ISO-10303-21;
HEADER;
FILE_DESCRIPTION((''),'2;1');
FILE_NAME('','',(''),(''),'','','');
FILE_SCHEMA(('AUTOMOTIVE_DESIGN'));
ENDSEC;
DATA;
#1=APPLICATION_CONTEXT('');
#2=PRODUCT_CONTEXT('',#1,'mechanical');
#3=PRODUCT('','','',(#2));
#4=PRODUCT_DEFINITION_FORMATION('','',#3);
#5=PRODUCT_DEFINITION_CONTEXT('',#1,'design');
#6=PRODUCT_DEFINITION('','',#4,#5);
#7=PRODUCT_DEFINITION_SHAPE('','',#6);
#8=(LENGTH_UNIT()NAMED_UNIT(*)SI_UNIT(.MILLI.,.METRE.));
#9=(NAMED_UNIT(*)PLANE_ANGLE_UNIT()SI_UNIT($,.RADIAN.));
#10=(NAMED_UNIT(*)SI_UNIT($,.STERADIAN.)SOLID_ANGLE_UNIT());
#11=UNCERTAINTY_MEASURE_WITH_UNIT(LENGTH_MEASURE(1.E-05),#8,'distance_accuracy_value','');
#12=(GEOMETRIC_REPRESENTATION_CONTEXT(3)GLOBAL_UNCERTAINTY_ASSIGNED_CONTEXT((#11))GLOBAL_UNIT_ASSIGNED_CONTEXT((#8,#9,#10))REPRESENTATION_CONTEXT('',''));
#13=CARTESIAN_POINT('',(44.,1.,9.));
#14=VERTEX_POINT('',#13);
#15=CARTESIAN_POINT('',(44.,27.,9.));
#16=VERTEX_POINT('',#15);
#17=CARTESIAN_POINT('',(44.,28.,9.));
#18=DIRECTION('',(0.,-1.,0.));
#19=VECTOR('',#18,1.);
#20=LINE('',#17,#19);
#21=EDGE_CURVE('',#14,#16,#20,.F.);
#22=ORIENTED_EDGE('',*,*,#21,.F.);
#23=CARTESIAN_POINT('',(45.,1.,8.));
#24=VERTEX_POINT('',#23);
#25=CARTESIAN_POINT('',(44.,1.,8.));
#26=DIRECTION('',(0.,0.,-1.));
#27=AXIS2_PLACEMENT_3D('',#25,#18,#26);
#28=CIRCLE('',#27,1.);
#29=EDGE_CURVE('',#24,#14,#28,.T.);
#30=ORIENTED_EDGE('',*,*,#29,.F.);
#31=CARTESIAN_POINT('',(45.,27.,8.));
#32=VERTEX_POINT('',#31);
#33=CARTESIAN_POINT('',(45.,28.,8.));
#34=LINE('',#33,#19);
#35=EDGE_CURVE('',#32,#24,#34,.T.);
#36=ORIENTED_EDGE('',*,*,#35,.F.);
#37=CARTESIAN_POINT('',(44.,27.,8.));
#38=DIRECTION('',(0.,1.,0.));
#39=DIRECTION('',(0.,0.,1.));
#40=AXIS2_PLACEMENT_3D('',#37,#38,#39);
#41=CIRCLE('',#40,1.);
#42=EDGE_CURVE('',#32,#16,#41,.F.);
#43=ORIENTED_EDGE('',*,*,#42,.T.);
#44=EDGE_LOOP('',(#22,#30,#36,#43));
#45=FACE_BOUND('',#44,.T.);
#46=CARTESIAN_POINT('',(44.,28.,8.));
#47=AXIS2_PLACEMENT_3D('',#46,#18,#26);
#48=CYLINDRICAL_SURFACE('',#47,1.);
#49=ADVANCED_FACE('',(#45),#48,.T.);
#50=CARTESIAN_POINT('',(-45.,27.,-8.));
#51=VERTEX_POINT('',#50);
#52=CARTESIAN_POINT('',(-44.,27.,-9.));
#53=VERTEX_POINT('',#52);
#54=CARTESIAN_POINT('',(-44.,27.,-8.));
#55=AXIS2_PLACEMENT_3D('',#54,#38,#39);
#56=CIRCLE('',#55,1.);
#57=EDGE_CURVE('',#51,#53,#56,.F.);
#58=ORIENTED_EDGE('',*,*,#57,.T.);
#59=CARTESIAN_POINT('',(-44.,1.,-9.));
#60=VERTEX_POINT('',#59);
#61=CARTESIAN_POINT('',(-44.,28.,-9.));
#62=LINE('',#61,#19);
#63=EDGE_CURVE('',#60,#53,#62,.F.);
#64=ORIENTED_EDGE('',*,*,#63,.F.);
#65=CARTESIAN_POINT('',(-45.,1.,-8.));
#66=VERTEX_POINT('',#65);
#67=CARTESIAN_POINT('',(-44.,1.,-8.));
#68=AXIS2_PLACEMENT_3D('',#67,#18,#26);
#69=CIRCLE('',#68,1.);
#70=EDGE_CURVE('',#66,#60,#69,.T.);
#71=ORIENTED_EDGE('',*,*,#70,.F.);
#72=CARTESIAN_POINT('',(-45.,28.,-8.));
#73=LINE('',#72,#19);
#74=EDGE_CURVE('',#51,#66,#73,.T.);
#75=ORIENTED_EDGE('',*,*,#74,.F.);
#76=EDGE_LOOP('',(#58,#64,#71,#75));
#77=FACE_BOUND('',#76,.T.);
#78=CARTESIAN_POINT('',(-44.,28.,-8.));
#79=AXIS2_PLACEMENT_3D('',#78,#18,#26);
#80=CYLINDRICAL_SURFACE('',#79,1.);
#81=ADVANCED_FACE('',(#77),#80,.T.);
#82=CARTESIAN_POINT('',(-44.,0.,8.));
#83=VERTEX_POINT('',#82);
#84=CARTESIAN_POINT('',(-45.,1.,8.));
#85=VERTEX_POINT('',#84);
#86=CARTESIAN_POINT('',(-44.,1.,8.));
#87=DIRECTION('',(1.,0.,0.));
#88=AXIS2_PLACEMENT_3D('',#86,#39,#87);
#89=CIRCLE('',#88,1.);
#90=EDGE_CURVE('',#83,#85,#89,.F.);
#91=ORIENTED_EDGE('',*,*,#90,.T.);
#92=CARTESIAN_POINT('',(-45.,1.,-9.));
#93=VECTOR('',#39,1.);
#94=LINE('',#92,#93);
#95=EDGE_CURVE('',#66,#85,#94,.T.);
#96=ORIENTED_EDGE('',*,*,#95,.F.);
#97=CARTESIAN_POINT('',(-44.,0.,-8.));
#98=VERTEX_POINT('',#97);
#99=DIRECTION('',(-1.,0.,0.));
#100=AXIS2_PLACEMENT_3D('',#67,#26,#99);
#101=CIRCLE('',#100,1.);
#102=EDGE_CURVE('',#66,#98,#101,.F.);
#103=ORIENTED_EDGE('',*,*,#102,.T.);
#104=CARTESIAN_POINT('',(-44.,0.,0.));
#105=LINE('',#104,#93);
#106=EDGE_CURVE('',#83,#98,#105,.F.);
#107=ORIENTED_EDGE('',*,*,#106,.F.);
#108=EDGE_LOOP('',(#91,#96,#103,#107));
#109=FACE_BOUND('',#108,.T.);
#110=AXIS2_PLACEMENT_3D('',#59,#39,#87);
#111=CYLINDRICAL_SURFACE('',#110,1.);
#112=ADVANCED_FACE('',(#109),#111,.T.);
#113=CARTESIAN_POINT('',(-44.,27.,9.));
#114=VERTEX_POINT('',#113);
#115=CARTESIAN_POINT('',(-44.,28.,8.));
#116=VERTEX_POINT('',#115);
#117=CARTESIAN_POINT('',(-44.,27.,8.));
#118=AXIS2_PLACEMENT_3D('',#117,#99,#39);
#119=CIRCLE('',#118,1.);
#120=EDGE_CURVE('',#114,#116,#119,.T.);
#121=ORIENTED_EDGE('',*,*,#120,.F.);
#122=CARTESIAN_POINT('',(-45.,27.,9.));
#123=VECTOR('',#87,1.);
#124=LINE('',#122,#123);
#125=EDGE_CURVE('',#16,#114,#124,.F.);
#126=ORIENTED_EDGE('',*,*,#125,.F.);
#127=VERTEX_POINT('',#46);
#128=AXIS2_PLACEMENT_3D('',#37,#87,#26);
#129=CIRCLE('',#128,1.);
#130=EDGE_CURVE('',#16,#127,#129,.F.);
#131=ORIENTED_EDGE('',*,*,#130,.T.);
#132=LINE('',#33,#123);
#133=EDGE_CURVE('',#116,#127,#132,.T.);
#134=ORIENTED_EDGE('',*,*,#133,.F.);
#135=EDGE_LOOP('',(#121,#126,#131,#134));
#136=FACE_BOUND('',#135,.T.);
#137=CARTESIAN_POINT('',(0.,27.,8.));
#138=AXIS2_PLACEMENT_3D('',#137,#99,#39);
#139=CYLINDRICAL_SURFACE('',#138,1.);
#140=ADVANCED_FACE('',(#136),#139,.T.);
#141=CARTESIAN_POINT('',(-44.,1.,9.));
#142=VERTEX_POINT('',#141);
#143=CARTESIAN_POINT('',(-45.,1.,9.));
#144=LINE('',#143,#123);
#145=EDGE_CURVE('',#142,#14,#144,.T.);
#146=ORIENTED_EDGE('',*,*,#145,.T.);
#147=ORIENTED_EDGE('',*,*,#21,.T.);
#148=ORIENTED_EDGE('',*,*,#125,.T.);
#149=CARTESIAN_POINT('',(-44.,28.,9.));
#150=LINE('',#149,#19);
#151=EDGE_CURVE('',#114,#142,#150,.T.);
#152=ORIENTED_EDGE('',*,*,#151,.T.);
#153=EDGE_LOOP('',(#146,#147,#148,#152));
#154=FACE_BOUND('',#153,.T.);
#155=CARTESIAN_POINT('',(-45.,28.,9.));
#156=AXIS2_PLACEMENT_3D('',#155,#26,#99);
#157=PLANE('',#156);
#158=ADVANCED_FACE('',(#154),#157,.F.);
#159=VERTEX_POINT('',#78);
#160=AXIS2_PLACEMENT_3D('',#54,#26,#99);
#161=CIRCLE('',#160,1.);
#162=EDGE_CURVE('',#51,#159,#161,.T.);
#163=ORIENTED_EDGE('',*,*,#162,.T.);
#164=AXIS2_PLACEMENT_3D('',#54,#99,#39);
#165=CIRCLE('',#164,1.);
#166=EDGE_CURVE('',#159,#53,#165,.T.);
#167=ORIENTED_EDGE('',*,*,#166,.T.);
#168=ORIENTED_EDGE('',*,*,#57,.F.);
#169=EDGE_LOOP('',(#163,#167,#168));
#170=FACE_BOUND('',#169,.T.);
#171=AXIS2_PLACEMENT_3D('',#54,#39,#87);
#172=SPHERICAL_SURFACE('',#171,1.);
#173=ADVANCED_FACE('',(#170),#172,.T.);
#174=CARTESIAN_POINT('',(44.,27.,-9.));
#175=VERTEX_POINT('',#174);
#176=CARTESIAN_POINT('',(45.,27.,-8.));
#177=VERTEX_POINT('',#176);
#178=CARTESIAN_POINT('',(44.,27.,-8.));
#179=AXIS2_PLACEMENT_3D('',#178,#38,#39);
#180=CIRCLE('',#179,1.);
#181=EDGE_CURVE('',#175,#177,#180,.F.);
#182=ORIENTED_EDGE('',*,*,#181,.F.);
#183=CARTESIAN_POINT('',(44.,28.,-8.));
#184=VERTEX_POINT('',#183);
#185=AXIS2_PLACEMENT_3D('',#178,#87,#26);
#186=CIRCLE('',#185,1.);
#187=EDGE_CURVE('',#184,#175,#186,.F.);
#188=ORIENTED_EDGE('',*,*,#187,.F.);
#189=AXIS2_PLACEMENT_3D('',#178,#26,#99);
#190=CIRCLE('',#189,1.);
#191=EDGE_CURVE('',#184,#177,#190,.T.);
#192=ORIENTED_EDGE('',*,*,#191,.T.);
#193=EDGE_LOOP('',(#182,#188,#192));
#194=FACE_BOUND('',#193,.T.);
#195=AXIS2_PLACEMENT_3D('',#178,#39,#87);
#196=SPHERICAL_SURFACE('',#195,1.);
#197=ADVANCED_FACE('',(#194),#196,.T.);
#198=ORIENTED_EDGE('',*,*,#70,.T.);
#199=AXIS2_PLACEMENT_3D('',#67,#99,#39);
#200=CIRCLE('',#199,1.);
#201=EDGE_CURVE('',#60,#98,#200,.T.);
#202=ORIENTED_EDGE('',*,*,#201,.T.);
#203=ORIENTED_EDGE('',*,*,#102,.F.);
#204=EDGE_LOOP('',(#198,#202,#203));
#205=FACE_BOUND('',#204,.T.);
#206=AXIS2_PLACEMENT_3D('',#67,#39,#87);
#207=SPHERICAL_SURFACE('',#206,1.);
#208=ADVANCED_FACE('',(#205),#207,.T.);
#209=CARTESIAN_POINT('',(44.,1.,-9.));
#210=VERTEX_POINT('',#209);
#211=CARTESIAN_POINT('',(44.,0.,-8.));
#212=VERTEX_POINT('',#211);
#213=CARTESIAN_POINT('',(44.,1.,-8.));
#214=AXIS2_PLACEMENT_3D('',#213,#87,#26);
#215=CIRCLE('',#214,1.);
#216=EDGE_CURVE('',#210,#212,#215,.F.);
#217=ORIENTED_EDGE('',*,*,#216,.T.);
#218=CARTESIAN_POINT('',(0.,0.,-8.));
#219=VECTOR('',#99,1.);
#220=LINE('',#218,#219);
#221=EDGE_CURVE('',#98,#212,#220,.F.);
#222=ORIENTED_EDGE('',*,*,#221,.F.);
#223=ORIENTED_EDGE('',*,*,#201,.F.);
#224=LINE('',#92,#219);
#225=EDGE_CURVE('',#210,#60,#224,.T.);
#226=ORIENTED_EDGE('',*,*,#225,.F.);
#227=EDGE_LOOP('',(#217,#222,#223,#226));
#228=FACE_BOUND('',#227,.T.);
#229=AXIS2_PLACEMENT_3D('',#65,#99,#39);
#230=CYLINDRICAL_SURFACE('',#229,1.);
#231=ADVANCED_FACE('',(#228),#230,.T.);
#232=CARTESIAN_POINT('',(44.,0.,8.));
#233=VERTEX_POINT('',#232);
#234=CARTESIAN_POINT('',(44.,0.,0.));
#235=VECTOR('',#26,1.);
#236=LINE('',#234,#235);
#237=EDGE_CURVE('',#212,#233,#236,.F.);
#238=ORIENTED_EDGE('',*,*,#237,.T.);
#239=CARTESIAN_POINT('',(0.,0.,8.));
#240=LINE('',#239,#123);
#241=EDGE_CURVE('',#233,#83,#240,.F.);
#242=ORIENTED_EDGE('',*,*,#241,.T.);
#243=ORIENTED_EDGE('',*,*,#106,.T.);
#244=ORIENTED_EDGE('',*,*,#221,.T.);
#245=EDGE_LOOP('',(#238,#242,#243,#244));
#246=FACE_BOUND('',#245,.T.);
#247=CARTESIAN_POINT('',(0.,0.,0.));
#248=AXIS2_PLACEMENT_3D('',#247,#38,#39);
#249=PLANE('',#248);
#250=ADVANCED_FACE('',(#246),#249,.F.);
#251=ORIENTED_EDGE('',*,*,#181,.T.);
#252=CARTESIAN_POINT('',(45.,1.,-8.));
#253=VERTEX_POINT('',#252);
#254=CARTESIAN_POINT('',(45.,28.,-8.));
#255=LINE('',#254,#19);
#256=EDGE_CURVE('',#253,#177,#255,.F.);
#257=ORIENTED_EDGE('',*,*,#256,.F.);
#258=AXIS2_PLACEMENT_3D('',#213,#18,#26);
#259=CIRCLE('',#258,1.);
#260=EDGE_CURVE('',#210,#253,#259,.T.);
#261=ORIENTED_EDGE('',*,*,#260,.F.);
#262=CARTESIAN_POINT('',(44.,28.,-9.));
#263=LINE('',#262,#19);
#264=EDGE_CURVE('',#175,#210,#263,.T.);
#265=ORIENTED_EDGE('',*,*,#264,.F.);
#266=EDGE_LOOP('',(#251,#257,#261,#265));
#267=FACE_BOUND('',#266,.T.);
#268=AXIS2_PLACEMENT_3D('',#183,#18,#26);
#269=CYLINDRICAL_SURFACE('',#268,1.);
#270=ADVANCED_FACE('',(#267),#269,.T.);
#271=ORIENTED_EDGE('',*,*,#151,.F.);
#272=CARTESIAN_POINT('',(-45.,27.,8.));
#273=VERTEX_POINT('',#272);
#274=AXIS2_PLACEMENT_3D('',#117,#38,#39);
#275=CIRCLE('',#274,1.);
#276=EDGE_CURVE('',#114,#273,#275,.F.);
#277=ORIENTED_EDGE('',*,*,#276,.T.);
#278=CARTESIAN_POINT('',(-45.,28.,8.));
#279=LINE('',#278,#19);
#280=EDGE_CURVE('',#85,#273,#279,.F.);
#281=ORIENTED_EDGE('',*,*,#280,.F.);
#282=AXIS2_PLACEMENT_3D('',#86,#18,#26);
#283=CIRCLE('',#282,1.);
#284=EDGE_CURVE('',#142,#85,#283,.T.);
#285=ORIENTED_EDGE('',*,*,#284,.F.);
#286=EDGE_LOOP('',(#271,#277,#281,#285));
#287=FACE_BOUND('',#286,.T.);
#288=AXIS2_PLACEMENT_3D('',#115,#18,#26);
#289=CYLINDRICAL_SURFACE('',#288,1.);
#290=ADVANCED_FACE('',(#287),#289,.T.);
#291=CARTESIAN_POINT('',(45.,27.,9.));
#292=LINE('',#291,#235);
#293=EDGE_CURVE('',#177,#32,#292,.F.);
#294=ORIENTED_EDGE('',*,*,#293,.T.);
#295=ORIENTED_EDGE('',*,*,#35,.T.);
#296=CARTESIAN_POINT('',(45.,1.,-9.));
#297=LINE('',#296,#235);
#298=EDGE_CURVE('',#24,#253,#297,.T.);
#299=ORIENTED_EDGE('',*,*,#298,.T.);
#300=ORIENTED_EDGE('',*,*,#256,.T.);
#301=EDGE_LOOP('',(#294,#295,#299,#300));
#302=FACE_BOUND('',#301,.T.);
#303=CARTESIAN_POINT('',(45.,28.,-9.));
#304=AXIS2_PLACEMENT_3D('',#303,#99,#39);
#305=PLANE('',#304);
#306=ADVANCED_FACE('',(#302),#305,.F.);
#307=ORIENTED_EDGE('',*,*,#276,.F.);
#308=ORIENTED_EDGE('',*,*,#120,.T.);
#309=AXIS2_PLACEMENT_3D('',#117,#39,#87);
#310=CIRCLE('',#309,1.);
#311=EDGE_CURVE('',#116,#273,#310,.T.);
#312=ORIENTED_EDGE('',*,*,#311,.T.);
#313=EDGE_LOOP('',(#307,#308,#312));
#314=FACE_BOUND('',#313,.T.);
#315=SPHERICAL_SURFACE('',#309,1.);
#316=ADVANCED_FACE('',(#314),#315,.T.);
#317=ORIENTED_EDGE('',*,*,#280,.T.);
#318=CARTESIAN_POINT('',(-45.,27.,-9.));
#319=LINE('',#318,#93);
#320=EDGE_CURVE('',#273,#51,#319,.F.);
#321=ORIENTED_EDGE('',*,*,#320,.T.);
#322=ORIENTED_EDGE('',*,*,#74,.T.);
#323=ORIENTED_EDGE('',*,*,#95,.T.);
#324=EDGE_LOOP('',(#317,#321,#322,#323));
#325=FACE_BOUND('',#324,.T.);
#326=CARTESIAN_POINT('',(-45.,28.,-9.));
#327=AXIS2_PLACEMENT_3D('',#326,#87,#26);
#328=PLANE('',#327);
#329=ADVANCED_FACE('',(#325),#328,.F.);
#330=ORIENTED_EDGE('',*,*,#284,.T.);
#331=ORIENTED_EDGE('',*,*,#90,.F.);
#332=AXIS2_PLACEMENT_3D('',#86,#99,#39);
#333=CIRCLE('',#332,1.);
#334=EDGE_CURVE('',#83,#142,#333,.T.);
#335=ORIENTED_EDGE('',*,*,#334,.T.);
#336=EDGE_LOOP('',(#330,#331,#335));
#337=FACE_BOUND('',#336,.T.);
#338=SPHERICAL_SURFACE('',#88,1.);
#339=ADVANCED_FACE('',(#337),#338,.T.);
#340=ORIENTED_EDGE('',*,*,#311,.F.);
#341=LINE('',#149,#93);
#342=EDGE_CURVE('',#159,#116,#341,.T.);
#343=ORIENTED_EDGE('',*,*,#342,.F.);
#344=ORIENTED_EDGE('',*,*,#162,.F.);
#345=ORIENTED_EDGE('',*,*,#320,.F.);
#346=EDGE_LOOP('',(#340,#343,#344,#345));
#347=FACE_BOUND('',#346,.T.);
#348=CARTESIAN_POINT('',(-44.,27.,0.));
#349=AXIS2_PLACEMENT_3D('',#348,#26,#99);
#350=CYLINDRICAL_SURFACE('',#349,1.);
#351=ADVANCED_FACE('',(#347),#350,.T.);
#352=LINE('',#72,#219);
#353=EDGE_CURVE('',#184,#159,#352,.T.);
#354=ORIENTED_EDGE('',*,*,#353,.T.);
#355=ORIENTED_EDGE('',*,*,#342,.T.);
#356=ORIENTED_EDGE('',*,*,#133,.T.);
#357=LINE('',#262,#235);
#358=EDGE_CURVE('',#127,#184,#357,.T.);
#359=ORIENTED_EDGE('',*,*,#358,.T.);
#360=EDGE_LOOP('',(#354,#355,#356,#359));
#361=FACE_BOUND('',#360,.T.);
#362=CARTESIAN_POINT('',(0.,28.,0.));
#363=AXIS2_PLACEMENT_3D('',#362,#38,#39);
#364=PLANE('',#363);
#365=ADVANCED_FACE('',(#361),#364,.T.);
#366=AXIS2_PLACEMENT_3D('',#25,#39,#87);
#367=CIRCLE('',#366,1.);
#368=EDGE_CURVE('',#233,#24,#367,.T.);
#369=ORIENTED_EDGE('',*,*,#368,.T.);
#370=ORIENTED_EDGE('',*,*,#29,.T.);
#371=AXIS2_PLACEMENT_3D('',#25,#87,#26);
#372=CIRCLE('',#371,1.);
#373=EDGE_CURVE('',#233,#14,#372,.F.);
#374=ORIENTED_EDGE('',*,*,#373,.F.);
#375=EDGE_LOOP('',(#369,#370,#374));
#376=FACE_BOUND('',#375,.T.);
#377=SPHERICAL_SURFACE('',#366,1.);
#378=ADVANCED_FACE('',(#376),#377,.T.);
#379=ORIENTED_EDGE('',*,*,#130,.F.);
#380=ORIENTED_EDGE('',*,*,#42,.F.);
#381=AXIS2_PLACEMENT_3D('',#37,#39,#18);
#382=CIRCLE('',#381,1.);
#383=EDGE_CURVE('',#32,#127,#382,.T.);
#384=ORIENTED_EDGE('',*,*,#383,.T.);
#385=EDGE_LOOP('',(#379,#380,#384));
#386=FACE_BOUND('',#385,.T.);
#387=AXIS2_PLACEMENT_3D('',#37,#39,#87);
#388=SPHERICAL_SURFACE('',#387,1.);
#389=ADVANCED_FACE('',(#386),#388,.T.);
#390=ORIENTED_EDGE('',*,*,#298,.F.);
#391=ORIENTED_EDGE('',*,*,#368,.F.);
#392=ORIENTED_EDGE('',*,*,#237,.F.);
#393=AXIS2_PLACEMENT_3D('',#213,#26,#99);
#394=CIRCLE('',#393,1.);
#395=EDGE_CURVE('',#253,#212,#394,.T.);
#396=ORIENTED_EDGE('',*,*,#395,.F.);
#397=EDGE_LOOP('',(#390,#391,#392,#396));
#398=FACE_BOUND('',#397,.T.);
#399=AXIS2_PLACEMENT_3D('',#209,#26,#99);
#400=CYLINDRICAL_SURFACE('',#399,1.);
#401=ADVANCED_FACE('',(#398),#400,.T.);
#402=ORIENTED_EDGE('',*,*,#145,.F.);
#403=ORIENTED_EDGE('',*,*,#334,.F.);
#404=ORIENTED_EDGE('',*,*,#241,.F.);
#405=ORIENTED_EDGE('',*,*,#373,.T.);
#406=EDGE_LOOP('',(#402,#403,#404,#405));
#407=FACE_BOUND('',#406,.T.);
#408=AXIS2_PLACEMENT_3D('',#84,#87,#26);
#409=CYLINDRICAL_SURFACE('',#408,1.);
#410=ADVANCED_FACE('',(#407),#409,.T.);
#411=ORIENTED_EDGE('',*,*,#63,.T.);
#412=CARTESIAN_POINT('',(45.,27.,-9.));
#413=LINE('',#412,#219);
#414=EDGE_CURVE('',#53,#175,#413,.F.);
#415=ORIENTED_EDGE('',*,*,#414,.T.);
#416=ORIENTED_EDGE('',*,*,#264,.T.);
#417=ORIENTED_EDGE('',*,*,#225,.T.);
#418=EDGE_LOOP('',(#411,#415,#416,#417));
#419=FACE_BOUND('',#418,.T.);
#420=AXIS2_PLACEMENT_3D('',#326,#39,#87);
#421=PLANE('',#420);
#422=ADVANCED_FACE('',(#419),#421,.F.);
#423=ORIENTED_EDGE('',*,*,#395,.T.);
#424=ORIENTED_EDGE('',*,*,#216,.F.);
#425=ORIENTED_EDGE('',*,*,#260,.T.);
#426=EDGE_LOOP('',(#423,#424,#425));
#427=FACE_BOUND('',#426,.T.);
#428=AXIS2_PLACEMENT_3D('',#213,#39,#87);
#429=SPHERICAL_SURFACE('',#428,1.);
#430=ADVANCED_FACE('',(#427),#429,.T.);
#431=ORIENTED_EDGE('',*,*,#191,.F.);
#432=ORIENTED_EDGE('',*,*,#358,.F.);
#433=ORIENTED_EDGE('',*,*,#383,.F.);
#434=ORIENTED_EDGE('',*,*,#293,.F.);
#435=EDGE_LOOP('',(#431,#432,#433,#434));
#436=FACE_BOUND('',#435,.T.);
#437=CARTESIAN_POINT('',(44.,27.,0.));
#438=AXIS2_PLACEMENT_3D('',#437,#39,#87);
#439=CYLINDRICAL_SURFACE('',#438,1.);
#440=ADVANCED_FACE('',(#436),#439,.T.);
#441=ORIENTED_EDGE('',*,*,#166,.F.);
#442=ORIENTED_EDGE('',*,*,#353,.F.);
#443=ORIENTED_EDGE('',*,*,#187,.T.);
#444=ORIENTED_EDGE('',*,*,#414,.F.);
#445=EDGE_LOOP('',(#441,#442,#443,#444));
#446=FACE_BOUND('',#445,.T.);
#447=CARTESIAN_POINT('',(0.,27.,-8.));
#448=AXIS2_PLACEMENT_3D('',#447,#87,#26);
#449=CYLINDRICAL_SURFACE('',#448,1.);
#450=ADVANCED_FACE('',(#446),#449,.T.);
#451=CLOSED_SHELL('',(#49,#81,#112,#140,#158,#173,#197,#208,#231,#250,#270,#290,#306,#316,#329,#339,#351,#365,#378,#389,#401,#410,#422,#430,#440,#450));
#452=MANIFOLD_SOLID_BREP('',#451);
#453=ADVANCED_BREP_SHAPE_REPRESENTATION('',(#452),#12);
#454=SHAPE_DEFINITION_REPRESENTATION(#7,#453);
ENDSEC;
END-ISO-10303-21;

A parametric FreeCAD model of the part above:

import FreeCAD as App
import Part
import Sketcher
Q = App.Units.Quantity


def add_polygon(sketch, points):
    """Adds a closed chain of lines whose ends are joined by coincident constraints."""
    first, n = sketch.GeometryCount, len(points)
    for a, b in zip(points, points[1:] + points[:1]):
        sketch.addGeometry(Part.LineSegment(App.Vector(*a, 0), App.Vector(*b, 0)), False)
    for i in range(n):
        sketch.addConstraint(Sketcher.Constraint("Coincident", first + i, 2, first + (i + 1) % n, 1))

doc = App.newDocument("Part")
body = doc.addObject("PartDesign::Body", "Body")

sketch1 = body.newObject("Sketcher::SketchObject", "Sketch")
sketch1.AttachmentSupport = (doc.getObject("XZ_Plane"), [""])
sketch1.MapMode = "FlatFace"
add_polygon(sketch1, [(-45, -9), (-45, 9), (45, 9), (45, -9)])
sketch1.addConstraint([
    Sketcher.Constraint("Vertical", 0),
    Sketcher.Constraint("Horizontal", 1),
    Sketcher.Constraint("Vertical", 2),
    Sketcher.Constraint("Horizontal", 3),
    Sketcher.Constraint("Symmetric", 0, 2, 2, 2, -1, 1),
    Sketcher.Constraint("DistanceX", 1, 1, 1, 2, Q("90 mm")),
    Sketcher.Constraint("DistanceY", 0, 1, 0, 2, Q("18 mm")),
])
pad1 = body.newObject("PartDesign::Pad", "Pad")
pad1.Profile = sketch1
pad1.Length = 28
pad1.Reversed = True
doc.recompute()

fillet = body.newObject("PartDesign::Fillet", "Fillet")
fillet.Base = (pad1, ["Edge1"])
fillet.UseAllEdges = True
fillet.Radius = 1

doc.recompute()
